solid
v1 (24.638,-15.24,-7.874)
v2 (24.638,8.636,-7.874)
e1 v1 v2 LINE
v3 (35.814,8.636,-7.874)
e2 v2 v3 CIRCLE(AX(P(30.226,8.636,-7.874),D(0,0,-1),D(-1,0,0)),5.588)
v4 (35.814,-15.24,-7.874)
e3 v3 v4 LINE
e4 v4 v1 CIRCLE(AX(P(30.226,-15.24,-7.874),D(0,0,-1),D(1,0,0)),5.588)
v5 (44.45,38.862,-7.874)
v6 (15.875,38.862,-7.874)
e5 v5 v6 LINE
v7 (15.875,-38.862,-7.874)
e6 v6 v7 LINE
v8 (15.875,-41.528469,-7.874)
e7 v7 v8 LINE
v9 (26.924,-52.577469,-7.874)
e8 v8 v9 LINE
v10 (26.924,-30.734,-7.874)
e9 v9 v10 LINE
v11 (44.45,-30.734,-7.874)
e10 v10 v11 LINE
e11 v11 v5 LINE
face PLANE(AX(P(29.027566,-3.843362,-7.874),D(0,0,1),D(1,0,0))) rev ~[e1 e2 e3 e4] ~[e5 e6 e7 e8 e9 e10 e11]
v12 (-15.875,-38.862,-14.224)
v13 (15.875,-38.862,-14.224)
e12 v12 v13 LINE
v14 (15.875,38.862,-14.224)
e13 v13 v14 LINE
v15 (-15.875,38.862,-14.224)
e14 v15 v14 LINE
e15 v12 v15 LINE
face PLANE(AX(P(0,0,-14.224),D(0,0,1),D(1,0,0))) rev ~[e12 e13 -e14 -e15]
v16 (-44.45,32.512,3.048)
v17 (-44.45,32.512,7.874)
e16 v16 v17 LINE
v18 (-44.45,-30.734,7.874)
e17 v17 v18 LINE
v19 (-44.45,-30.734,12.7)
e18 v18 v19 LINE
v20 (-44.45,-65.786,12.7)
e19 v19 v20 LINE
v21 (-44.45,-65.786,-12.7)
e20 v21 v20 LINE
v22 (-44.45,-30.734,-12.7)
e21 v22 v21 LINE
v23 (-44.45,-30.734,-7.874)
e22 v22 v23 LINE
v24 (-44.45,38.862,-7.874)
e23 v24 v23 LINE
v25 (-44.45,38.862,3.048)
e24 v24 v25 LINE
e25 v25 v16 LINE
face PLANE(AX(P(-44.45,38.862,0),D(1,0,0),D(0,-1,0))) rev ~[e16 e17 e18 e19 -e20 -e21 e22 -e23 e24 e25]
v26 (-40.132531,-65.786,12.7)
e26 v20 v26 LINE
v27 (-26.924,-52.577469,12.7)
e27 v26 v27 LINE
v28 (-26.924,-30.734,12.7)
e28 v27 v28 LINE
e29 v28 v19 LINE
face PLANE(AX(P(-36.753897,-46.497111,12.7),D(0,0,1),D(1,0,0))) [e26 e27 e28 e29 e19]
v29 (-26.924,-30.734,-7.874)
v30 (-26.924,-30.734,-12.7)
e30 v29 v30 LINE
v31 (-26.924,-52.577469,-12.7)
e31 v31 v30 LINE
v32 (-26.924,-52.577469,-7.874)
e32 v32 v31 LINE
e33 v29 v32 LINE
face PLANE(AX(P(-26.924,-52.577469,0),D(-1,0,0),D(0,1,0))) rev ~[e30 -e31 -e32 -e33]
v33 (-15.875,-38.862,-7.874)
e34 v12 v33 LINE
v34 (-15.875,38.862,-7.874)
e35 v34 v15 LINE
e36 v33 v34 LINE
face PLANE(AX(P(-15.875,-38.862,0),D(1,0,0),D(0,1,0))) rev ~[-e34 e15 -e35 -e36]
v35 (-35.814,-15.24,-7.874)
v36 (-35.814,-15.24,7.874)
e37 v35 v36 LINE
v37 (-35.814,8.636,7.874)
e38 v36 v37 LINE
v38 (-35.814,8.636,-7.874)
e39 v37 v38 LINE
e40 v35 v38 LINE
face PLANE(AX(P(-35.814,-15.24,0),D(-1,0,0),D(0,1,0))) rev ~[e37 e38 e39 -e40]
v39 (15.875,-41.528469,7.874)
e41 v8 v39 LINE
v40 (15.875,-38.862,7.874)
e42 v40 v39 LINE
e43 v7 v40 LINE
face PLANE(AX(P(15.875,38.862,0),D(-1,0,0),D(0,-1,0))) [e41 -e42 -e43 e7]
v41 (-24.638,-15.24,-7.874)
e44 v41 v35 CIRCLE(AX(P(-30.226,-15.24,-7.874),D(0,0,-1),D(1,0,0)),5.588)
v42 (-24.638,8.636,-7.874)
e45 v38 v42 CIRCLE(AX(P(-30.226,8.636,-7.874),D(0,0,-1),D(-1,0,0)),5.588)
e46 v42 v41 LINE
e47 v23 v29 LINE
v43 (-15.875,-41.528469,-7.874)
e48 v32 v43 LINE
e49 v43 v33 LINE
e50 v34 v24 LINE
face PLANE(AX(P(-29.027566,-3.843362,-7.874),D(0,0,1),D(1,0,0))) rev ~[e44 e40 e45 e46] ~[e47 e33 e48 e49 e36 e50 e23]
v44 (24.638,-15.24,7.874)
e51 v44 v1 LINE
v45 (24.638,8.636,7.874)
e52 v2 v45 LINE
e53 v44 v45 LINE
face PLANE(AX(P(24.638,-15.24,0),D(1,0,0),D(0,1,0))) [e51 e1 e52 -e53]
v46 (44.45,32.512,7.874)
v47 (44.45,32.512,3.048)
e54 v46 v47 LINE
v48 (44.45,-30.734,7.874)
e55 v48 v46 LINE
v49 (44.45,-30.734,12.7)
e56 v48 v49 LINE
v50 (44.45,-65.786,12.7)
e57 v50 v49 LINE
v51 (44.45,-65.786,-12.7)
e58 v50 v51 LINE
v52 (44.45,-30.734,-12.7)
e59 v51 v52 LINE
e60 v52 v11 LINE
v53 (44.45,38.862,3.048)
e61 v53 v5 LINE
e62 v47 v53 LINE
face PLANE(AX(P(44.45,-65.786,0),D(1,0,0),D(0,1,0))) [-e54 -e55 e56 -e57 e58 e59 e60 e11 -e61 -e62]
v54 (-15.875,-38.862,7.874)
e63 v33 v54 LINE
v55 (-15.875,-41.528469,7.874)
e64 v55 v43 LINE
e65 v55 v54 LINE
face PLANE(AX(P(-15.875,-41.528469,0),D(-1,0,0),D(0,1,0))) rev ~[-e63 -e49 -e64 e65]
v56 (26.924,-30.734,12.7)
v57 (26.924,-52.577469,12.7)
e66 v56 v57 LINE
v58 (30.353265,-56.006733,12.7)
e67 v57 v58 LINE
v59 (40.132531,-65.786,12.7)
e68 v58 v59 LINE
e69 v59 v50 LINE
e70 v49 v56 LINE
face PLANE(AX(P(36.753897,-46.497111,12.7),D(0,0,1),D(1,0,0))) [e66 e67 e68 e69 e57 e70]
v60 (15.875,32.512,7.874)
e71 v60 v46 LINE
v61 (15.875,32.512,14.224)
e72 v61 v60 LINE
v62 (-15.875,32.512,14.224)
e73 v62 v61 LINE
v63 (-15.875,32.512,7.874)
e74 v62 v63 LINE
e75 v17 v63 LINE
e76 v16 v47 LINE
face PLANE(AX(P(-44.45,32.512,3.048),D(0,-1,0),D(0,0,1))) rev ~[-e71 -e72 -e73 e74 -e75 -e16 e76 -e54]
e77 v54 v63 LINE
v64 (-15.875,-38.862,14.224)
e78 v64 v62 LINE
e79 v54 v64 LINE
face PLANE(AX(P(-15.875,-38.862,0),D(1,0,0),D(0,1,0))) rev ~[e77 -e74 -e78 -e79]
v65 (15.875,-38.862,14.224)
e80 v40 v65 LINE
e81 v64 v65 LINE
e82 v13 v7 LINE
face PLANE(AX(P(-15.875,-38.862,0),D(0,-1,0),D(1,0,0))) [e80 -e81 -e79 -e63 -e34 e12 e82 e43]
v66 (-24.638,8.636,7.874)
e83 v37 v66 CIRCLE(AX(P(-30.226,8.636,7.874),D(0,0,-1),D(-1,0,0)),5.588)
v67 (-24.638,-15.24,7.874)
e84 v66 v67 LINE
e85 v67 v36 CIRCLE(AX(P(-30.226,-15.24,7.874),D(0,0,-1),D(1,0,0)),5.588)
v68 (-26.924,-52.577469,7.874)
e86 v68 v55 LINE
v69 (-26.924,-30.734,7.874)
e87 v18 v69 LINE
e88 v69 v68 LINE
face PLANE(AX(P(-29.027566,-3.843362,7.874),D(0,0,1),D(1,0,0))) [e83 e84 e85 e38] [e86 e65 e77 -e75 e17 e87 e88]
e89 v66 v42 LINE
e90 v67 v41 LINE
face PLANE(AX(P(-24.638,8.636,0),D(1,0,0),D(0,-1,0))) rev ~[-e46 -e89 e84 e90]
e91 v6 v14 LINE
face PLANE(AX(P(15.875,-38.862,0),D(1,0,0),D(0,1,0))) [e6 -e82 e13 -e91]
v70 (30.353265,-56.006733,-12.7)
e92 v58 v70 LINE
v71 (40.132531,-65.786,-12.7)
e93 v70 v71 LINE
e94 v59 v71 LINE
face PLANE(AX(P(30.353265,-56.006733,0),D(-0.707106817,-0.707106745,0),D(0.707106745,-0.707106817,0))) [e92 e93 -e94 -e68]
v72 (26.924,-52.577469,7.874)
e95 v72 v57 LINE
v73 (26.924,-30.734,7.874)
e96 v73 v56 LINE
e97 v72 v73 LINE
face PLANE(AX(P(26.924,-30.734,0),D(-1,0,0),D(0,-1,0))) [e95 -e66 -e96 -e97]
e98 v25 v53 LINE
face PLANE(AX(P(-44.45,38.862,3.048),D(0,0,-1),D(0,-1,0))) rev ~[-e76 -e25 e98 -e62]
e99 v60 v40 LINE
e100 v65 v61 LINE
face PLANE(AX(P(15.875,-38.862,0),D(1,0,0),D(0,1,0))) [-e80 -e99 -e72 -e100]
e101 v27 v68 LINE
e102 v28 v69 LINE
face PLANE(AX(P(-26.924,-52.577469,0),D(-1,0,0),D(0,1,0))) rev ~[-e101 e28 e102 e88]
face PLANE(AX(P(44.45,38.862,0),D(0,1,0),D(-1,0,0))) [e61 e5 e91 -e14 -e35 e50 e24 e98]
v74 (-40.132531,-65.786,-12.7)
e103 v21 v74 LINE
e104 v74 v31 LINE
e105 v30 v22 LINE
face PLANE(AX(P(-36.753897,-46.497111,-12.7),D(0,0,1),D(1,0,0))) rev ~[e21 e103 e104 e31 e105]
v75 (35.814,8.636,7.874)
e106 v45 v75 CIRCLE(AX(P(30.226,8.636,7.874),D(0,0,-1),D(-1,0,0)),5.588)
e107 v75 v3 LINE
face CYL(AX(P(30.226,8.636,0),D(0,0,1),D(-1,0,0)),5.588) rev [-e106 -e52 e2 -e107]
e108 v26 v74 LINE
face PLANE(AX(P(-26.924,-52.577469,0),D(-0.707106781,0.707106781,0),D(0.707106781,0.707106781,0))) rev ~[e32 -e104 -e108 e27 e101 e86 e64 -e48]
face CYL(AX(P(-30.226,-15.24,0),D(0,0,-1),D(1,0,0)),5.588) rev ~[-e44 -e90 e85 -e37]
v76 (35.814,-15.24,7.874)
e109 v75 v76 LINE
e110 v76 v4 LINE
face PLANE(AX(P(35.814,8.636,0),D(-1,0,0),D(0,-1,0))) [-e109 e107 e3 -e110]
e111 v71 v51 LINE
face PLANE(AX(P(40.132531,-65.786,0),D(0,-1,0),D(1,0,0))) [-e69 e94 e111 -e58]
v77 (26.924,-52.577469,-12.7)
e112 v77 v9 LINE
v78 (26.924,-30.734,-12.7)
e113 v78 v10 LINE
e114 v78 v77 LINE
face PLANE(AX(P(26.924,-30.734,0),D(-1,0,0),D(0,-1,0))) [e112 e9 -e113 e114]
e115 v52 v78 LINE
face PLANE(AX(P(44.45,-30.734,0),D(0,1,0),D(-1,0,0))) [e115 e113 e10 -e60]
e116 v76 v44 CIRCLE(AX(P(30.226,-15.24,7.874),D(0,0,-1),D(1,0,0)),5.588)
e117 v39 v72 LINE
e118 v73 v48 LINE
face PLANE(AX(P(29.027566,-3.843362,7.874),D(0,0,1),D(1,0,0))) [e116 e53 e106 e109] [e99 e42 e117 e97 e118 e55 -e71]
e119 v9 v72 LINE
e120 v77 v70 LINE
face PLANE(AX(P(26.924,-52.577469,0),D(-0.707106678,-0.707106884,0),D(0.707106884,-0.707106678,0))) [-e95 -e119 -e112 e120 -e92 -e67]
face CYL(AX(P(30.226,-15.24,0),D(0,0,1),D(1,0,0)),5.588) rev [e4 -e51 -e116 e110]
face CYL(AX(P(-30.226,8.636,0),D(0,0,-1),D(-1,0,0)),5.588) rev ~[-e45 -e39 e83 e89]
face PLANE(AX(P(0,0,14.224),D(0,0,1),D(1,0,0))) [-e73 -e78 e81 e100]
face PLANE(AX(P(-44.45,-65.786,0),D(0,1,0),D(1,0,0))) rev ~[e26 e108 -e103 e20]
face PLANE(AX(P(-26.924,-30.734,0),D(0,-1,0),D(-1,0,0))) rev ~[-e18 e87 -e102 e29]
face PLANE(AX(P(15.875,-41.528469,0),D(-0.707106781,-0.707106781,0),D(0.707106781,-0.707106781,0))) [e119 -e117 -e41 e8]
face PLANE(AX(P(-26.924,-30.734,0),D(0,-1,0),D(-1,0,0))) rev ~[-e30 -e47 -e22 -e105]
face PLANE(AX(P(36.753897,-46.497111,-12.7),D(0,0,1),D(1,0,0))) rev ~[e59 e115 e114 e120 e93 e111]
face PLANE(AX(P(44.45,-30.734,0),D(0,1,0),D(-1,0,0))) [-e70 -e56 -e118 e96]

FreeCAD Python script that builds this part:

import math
import FreeCAD as App
import Part
import Sketcher

V = App.Vector
Q = App.Units.Quantity

doc = App.newDocument("Part")
body = doc.addObject("PartDesign::Body", "Body")

# Sketch on XY plane
sketch1 = body.newObject("Sketcher::SketchObject", "Sketch")
sketch1.AttachmentSupport = (doc.getObject("XY_Plane"), [""])
sketch1.MapMode = "FlatFace"
sketch1.addGeometry([
    Part.LineSegment(V(-15.875, 38.862, 0), V(-15.875, -38.862, 0)),
    Part.LineSegment(V(-15.875, -38.862, 0), V(15.875, -38.862, 0)),
    Part.LineSegment(V(15.875, -38.862, 0), V(15.875, 38.862, 0)),
    Part.LineSegment(V(15.875, 38.862, 0), V(-15.875, 38.862, 0)),
], False)
sketch1.addConstraint([
    Sketcher.Constraint("Coincident", 0, 2, 1, 1),
    Sketcher.Constraint("Coincident", 1, 2, 2, 1),
    Sketcher.Constraint("Coincident", 2, 2, 3, 1),
    Sketcher.Constraint("Coincident", 3, 2, 0, 1),
    Sketcher.Constraint("Vertical", 0),
    Sketcher.Constraint("Horizontal", 1),
    Sketcher.Constraint("Vertical", 2),
    Sketcher.Constraint("Horizontal", 3),
    Sketcher.Constraint("Symmetric", 0, 2, 2, 2, -1, 1),
    Sketcher.Constraint("DistanceX", 1, 1, 1, 2, Q("1.25 in")),
    Sketcher.Constraint("DistanceY", 0, 2, 0, 1, Q("3.06 in")),
])
pad1 = body.newObject("PartDesign::Pad", "Pad")
pad1.Profile = sketch1
pad1.Length = Q("1.12 in")
pad1.Midplane = True

# Sketch on XY plane
sketch2 = body.newObject("Sketcher::SketchObject", "Sketch001")
sketch2.AttachmentSupport = (doc.getObject("XY_Plane"), [""])
sketch2.MapMode = "FlatFace"
sketch2.addGeometry([
    Part.LineSegment(V(-15.875, 38.862, 0), V(-44.45, 38.862, 0)),  # 0
    Part.LineSegment(V(-44.45, 38.862, 0), V(-44.45, -30.734, 0)),  # 1
    Part.LineSegment(V(-44.45, -30.734, 0), V(-26.924, -30.734, 0)),  # 2
    Part.LineSegment(V(-26.924, -30.734, 0), V(-26.924, -52.577469, 0)),  # 3
    Part.LineSegment(V(-26.924, -52.577469, 0), V(-15.875, -41.528469, 0)),  # 4
    Part.LineSegment(V(-15.875, -41.528469, 0), V(-15.875, 38.862, 0)),  # 5
    Part.ArcOfCircle(Part.Circle(V(-30.226, -15.24, 0), V(0, 0, 1), 5.588), math.radians(180), math.radians(360)),  # 6
    Part.LineSegment(V(-35.814, -15.24, 0), V(-35.814, 8.636, 0)),  # 7
    Part.ArcOfCircle(Part.Circle(V(-30.226, 8.636, 0), V(0, 0, 1), 5.588), math.radians(0), math.radians(180)),  # 8
    Part.LineSegment(V(-24.638, 8.636, 0), V(-24.638, -15.24, 0)),  # 9
    Part.LineSegment(V(44.45, 38.862, 0), V(15.875, 38.862, 0)),  # 10
    Part.LineSegment(V(15.875, 38.862, 0), V(15.875, -41.528469, 0)),  # 11
    Part.LineSegment(V(15.875, -41.528469, 0), V(26.924, -52.577469, 0)),  # 12
    Part.LineSegment(V(26.924, -52.577469, 0), V(26.924, -30.734, 0)),  # 13
    Part.LineSegment(V(26.924, -30.734, 0), V(44.45, -30.734, 0)),  # 14
    Part.LineSegment(V(44.45, -30.734, 0), V(44.45, 38.862, 0)),  # 15
    Part.LineSegment(V(24.638, -15.24, 0), V(24.638, 8.636, 0)),  # 16
    Part.ArcOfCircle(Part.Circle(V(30.226, 8.636, 0), V(0, 0, 1), 5.588), math.radians(0), math.radians(180)),  # 17
    Part.LineSegment(V(35.814, 8.636, 0), V(35.814, -15.24, 0)),  # 18
    Part.ArcOfCircle(Part.Circle(V(30.226, -15.24, 0), V(0, 0, 1), 5.588), math.radians(180), math.radians(360)),  # 19
], False)
sketch2.addConstraint([
    Sketcher.Constraint("Coincident", 0, 2, 1, 1),
    Sketcher.Constraint("Coincident", 1, 2, 2, 1),
    Sketcher.Constraint("Coincident", 2, 2, 3, 1),
    Sketcher.Constraint("Coincident", 3, 2, 4, 1),
    Sketcher.Constraint("Coincident", 4, 2, 5, 1),
    Sketcher.Constraint("Coincident", 5, 2, 0, 1),
    Sketcher.Constraint("Tangent", 6, 1, 7, 1),
    Sketcher.Constraint("Tangent", 7, 2, 8, 2),
    Sketcher.Constraint("Tangent", 8, 1, 9, 1),
    Sketcher.Constraint("Tangent", 9, 2, 6, 2),
    Sketcher.Constraint("Coincident", 10, 2, 11, 1),
    Sketcher.Constraint("Coincident", 11, 2, 12, 1),
    Sketcher.Constraint("Coincident", 12, 2, 13, 1),
    Sketcher.Constraint("Coincident", 13, 2, 14, 1),
    Sketcher.Constraint("Coincident", 14, 2, 15, 1),
    Sketcher.Constraint("Coincident", 15, 2, 10, 1),
    Sketcher.Constraint("Tangent", 16, 2, 17, 2),
    Sketcher.Constraint("Tangent", 17, 1, 18, 1),
    Sketcher.Constraint("Tangent", 18, 2, 19, 2),
    Sketcher.Constraint("Tangent", 19, 1, 16, 1),
    Sketcher.Constraint("Horizontal", 0),
    Sketcher.Constraint("Vertical", 1),
    Sketcher.Constraint("Horizontal", 2),
    Sketcher.Constraint("Vertical", 3),
    Sketcher.Constraint("Vertical", 5),
    Sketcher.Constraint("Vertical", 7),
    Sketcher.Constraint("Vertical", 9),
    Sketcher.Constraint("Horizontal", 10),
    Sketcher.Constraint("Vertical", 11),
    Sketcher.Constraint("Vertical", 13),
    Sketcher.Constraint("Horizontal", 14),
    Sketcher.Constraint("Vertical", 15),
    Sketcher.Constraint("Vertical", 16),
    Sketcher.Constraint("Vertical", 18),
    Sketcher.Constraint("Equal", 8, 17),
    Sketcher.Constraint("Symmetric", 8, 3, 17, 3, -2),
    Sketcher.Constraint("Symmetric", 5, 2, 10, 2, -2),
    Sketcher.Constraint("Symmetric", 3, 2, 12, 2, -2),
    Sketcher.Constraint("Symmetric", 1, 2, 14, 2, -2),
    Sketcher.Constraint("Perpendicular", 4, 12),
    Sketcher.Constraint("Horizontal", 6, 3, 19, 3),
    Sketcher.Constraint("Horizontal", 4, 2, 11, 2),
    Sketcher.Constraint("Radius", 6, Q("0.22 in")),
    Sketcher.Constraint("DistanceX", 2, 1, 2, 2, Q("0.69 in")),
    Sketcher.Constraint("DistanceY", 1, 2, 1, 1, Q("2.74 in")),
    Sketcher.Constraint("DistanceY", 7, 1, 7, 2, Q("0.94 in")),
    Sketcher.Constraint("DistanceY", 6, 3, -1, 1, Q("0.6 in")),
    Sketcher.Constraint("DistanceX", 0, 2, 0, 1, Q("1.125 in")),
    Sketcher.Constraint("DistanceX", 6, 3, -1, 1, Q("1.19 in")),
    Sketcher.Constraint("DistanceX", 0, 2, -1, 1, Q("1.75 in")),
    Sketcher.Constraint("DistanceY", -1, 1, 0, 2, Q("1.53 in")),
    Sketcher.Constraint("DistanceY", 3, 2, 3, 1, 21.843469),
])
pad2 = body.newObject("PartDesign::Pad", "Pad001")
pad2.Profile = sketch2
pad2.Length = Q("0.62 in")
pad2.Midplane = True

# Sketch on YZ plane
sketch3 = body.newObject("Sketcher::SketchObject", "Sketch002")
sketch3.AttachmentSupport = (doc.getObject("YZ_Plane"), [""])
sketch3.MapMode = "FlatFace"
sketch3.AttachmentOffset = App.Placement(V(0, 0, -1.75 * 25.4), App.Rotation())
sketch3.addGeometry([
    Part.LineSegment(V(38.862, 3.048, 0), V(32.512, 3.048, 0)),
    Part.LineSegment(V(32.512, 3.048, 0), V(32.512, 17.1704, 0)),
    Part.LineSegment(V(32.512, 17.1704, 0), V(38.862, 17.1704, 0)),
    Part.LineSegment(V(38.862, 17.1704, 0), V(38.862, 3.048, 0)),
], False)
sketch3.addConstraint([
    Sketcher.Constraint("Coincident", 0, 2, 1, 1),
    Sketcher.Constraint("Coincident", 1, 2, 2, 1),
    Sketcher.Constraint("Coincident", 2, 2, 3, 1),
    Sketcher.Constraint("Coincident", 3, 2, 0, 1),
    Sketcher.Constraint("Horizontal", 0),
    Sketcher.Constraint("Vertical", 1),
    Sketcher.Constraint("Horizontal", 2),
    Sketcher.Constraint("Vertical", 3),
    Sketcher.Constraint("DistanceX", 0, 2, 0, 1, Q("0.25 in")),
    Sketcher.Constraint("DistanceY", 1, 1, 1, 2, Q("0.556 in")),
    Sketcher.Constraint("DistanceX", -1, 1, 0, 2, Q("1.28 in")),
    Sketcher.Constraint("DistanceY", -1, 1, 0, 2, Q("0.12 in")),
])
pocket1 = body.newObject("PartDesign::Pocket", "Pocket")
pocket1.Profile = sketch3
pocket1.Type = "ThroughAll"
pocket1.Reversed = True

# Sketch on XY plane
sketch4 = body.newObject("Sketcher::SketchObject", "Sketch003")
sketch4.AttachmentSupport = (doc.getObject("XY_Plane"), [""])
sketch4.MapMode = "FlatFace"
sketch4.addGeometry([
    Part.LineSegment(V(-26.924, -30.734, 0), V(-44.45, -30.734, 0)),  # 0
    Part.LineSegment(V(-44.45, -30.734, 0), V(-44.45, -65.786, 0)),  # 1
    Part.LineSegment(V(-44.45, -65.786, 0), V(-40.132531, -65.786, 0)),  # 2
    Part.LineSegment(V(-40.132531, -65.786, 0), V(-26.924, -52.577469, 0)),  # 3
    Part.LineSegment(V(-26.924, -52.577469, 0), V(-26.924, -30.734, 0)),  # 4
    Part.LineSegment(V(44.45, -65.786, 0), V(44.45, -30.734, 0)),  # 5
    Part.LineSegment(V(44.45, -30.734, 0), V(26.924, -30.734, 0)),  # 6
    Part.LineSegment(V(26.924, -30.734, 0), V(26.924, -52.577469, 0)),  # 7
    Part.LineSegment(V(26.924, -52.577469, 0), V(30.353265, -56.006733, 0)),  # 8
    Part.LineSegment(V(30.353265, -56.006733, 0), V(40.132531, -65.786, 0)),  # 9
    Part.LineSegment(V(40.132531, -65.786, 0), V(44.45, -65.786, 0)),  # 10
], False)
sketch4.addConstraint([
    Sketcher.Constraint("Coincident", 0, 2, 1, 1),
    Sketcher.Constraint("Coincident", 1, 2, 2, 1),
    Sketcher.Constraint("Coincident", 2, 2, 3, 1),
    Sketcher.Constraint("Coincident", 3, 2, 4, 1),
    Sketcher.Constraint("Coincident", 4, 2, 0, 1),
    Sketcher.Constraint("Coincident", 5, 2, 6, 1),
    Sketcher.Constraint("Coincident", 6, 2, 7, 1),
    Sketcher.Constraint("Coincident", 7, 2, 8, 1),
    Sketcher.Constraint("Coincident", 8, 2, 9, 1),
    Sketcher.Constraint("Coincident", 9, 2, 10, 1),
    Sketcher.Constraint("Coincident", 10, 2, 5, 1),
    Sketcher.Constraint("Horizontal", 0),
    Sketcher.Constraint("Vertical", 1),
    Sketcher.Constraint("Horizontal", 2),
    Sketcher.Constraint("Vertical", 4),
    Sketcher.Constraint("Vertical", 5),
    Sketcher.Constraint("Horizontal", 6),
    Sketcher.Constraint("Vertical", 7),
    Sketcher.Constraint("Horizontal", 10),
    Sketcher.Constraint("Symmetric", 0, 2, 5, 2, -2),
    Sketcher.Constraint("Symmetric", 3, 2, 7, 2, -2),
    Sketcher.Constraint("Symmetric", 2, 2, 9, 2, -2),
    Sketcher.Constraint("Perpendicular", 3, 8),
    Sketcher.Constraint("Parallel", 8, 9),
    Sketcher.Constraint("DistanceX", 0, 2, 0, 1, Q("0.69 in")),
    Sketcher.Constraint("DistanceY", 1, 2, 1, 1, Q("1.38 in")),
    Sketcher.Constraint("DistanceX", 0, 2, 5, 2, Q("3.5 in")),
    Sketcher.Constraint("DistanceY", 0, 2, -1, 1, Q("1.21 in")),
    Sketcher.Constraint("DistanceX", 2, 1, 2, 2, 4.317469),
    Sketcher.Constraint("Distance", 9, 13.829971),
])
pad3 = body.newObject("PartDesign::Pad", "Pad002")
pad3.Profile = sketch4
pad3.Length = Q("1 in")
pad3.Midplane = True

doc.recompute()
